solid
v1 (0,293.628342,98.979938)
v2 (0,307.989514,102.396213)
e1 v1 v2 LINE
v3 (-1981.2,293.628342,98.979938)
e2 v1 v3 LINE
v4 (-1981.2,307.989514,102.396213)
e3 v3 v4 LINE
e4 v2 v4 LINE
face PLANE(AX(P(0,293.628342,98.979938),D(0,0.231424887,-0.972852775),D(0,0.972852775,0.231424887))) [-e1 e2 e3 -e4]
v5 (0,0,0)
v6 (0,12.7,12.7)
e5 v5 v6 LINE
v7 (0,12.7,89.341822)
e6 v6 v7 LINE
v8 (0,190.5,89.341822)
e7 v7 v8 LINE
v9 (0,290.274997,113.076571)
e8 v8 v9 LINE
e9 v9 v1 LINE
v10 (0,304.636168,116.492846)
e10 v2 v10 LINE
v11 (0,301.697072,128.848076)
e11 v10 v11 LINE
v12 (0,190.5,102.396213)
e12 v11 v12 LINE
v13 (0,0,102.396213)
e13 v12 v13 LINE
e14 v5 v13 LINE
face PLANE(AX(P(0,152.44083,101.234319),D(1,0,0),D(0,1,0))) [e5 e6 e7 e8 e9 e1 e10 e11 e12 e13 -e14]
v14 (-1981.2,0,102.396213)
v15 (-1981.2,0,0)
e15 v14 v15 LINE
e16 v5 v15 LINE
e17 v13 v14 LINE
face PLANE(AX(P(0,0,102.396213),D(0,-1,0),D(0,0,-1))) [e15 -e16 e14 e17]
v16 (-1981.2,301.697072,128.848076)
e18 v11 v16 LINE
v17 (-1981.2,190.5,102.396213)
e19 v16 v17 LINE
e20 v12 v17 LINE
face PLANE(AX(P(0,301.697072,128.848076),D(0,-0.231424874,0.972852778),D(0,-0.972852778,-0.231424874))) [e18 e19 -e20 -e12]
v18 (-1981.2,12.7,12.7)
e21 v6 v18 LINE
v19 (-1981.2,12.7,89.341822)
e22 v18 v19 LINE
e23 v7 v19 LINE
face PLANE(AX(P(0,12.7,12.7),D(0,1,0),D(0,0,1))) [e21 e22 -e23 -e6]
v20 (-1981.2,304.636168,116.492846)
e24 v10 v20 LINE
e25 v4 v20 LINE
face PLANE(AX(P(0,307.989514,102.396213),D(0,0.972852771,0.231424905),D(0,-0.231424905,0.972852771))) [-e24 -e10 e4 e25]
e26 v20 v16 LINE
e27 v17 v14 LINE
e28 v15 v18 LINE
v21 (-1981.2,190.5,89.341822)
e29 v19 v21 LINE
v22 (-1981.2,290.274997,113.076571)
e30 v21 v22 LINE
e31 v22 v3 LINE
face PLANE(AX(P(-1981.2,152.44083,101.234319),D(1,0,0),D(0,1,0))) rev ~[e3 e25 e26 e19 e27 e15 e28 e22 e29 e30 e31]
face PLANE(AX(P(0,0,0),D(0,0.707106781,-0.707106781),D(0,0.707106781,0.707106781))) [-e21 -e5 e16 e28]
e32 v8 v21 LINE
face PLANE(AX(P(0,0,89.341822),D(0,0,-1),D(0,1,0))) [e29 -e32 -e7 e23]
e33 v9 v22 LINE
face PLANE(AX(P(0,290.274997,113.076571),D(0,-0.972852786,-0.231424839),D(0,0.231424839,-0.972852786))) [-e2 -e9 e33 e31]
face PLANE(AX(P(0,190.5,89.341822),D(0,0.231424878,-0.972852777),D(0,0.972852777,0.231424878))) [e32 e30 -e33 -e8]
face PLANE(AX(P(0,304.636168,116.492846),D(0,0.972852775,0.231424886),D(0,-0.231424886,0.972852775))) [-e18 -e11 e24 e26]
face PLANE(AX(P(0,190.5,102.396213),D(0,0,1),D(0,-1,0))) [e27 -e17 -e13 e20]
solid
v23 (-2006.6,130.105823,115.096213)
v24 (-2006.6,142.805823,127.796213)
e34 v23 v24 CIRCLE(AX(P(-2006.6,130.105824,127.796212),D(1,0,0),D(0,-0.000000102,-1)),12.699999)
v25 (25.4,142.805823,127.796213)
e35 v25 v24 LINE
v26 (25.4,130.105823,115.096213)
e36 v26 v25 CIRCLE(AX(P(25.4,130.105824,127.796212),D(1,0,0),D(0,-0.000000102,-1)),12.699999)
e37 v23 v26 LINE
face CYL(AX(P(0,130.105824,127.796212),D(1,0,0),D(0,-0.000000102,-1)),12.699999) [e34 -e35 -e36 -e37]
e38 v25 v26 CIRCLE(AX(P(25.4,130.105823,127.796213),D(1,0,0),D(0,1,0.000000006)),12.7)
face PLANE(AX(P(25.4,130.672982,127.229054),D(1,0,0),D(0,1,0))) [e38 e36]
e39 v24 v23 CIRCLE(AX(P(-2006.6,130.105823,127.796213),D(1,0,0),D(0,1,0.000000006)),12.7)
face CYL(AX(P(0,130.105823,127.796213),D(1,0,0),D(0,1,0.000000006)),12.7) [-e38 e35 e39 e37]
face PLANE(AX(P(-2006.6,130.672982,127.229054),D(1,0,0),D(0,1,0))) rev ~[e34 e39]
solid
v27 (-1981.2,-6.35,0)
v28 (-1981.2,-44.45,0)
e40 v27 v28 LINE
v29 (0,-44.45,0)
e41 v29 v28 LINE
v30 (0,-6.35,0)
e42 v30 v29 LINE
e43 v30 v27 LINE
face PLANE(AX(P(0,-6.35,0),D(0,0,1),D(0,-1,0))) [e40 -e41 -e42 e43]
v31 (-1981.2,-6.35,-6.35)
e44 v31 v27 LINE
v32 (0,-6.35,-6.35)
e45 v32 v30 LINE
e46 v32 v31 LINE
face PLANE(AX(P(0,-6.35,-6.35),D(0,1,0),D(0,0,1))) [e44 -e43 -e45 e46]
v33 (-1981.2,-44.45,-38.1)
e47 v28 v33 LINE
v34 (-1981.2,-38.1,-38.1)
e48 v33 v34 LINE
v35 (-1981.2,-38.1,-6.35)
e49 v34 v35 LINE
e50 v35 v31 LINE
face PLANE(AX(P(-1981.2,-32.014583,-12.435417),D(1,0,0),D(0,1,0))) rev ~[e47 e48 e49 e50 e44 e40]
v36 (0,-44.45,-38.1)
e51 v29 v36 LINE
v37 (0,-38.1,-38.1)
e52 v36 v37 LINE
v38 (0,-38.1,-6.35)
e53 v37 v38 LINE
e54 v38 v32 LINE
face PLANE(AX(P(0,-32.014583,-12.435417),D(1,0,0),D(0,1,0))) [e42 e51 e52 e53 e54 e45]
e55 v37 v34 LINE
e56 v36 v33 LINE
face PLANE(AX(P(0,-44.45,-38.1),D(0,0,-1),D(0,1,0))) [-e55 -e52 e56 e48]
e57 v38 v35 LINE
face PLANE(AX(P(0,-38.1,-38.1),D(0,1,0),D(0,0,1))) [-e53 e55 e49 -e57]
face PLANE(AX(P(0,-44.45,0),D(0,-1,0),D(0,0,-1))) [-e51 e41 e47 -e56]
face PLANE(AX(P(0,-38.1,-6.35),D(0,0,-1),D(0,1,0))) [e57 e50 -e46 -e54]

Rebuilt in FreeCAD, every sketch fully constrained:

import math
import FreeCAD as App
import Part
import Sketcher

V = App.Vector
Q = App.Units.Quantity


def add_polygon(sketch, points):
    """Adds a closed chain of lines whose ends are joined by coincident constraints."""
    first, n = sketch.GeometryCount, len(points)
    for a, b in zip(points, points[1:] + points[:1]):
        sketch.addGeometry(Part.LineSegment(App.Vector(*a, 0), App.Vector(*b, 0)), False)
    for i in range(n):
        sketch.addConstraint(Sketcher.Constraint("Coincident", first + i, 2, first + (i + 1) % n, 1))

doc = App.newDocument("Part")
body = doc.addObject("PartDesign::Body", "Body")
body.AllowCompound = True

sketch1 = doc.addObject("Sketcher::SketchObject", "Sketch")
body.addObject(sketch1)
sketch1.AttachmentSupport = (doc.YZ_Plane, [""])
sketch1.MapMode = "FlatFace"
add_polygon(sketch1, [(0, 101.6), (0, 0), (12.7, 12.7), (12.7, 101.6)])
add_polygon(sketch1, [(-6.35, -6.35), (-6.35, 0), (-44.45, 0), (-44.45, -38.1), (-38.1, -38.1), (-38.1, -6.35)])
sketch1.addConstraint(Sketcher.Constraint("Vertical", 0))
sketch1.addConstraint(Sketcher.Constraint("Vertical", 2))
sketch1.addConstraint(Sketcher.Constraint("Horizontal", 3))
sketch1.addConstraint(Sketcher.Constraint("Vertical", 4))
sketch1.addConstraint(Sketcher.Constraint("Horizontal", 5))
sketch1.addConstraint(Sketcher.Constraint("Vertical", 6))
sketch1.addConstraint(Sketcher.Constraint("Horizontal", 7))
sketch1.addConstraint(Sketcher.Constraint("Vertical", 8))
sketch1.addConstraint(Sketcher.Constraint("Horizontal", 9))
sketch1.addConstraint(Sketcher.Constraint("Coincident", 0, 2, -1, 1))
sketch1.addConstraint(Sketcher.Constraint("PointOnObject", 4, 2, -1))
sketch1.addConstraint(Sketcher.Constraint("Equal", 7, 4))
sketch1.addConstraint(Sketcher.Constraint("Equal", 5, 6))
sketch1.addConstraint(Sketcher.Constraint("DistanceY", 0, 2, 0, 1, Q("4 in")))
sketch1.addConstraint(Sketcher.Constraint("DistanceX", 3, 2, 3, 1, Q("0.5 in")))
sketch1.addConstraint(Sketcher.Constraint("DistanceX", 5, 2, 5, 1, Q("1.5 in")))
sketch1.addConstraint(Sketcher.Constraint("DistanceY", 2, 1, 2, 2, Q("3.5 in")))
sketch1.addConstraint(Sketcher.Constraint("DistanceX", 7, 2, 1, 2, Q("2 in")))
sketch1.addConstraint(Sketcher.Constraint("DistanceX", 7, 1, 7, 2, Q("0.25 in")))
pad1 = doc.addObject("PartDesign::Pad", "Pad")
body.addObject(pad1)
pad1.Profile = sketch1
pad1.Length = Q("78 in")
pad1.Reversed = True

sketch2 = doc.addObject("Sketcher::SketchObject", "Sketch001")
body.addObject(sketch2)
sketch2.AttachmentSupport = (doc.YZ_Plane, [""])
sketch2.MapMode = "FlatFace"
add_polygon(sketch2, [(190.5, 102.396213), (0, 102.396213), (0, 89.341822), (190.5, 89.341822), (290.274997, 113.076571), (293.628342, 98.979938), (307.989514, 102.396213), (304.636168, 116.492846), (301.697072, 128.848076)])
sketch2.addConstraint(Sketcher.Constraint("Horizontal", 0))
sketch2.addConstraint(Sketcher.Constraint("Vertical", 1))
sketch2.addConstraint(Sketcher.Constraint("Horizontal", 2))
sketch2.addConstraint(Sketcher.Constraint("PointOnObject", 0, 2, -2))
sketch2.addConstraint(Sketcher.Constraint("Perpendicular", 3, 4))
sketch2.addConstraint(Sketcher.Constraint("Perpendicular", 4, 5))
sketch2.addConstraint(Sketcher.Constraint("Perpendicular", 5, 6))
sketch2.addConstraint(Sketcher.Constraint("Parallel", 6, 7))
sketch2.addConstraint(Sketcher.Constraint("Perpendicular", 7, 8))
sketch2.addConstraint(Sketcher.Constraint("Horizontal", 0, 2, 5, 2))
sketch2.addConstraint(Sketcher.Constraint("Vertical", 2, 2, 8, 2))
sketch2.addConstraint(Sketcher.Constraint("Equal", 4, 6))
sketch2.addConstraint(Sketcher.Constraint("DistanceX", 0, 2, 0, 1, Q("7.5 in")))
sketch2.addConstraint(Sketcher.Constraint("Distance", 7, Q("0.5 in")))
sketch2.addConstraint(Sketcher.Constraint("Distance", 8, Q("4.5 in")))
sketch2.addConstraint(Sketcher.Constraint("DistanceY", 1, 2, 1, 1, 13.054391))
sketch2.addConstraint(Sketcher.Constraint("DistanceY", -1, 1, 1, 2, 89.341822))
sketch2.addConstraint(Sketcher.Constraint("DistanceY", -1, 1, 3, 2, 113.076571))
pad2 = doc.addObject("PartDesign::Pad", "Pad001")
body.addObject(pad2)
pad2.Profile = sketch2
pad2.Length = Q("78 in")
pad2.Reversed = True
body2 = doc.addObject("PartDesign::Body", "Body001")

sketch3 = doc.addObject("Sketcher::SketchObject", "Sketch002")
body2.addObject(sketch3)
sketch3.AttachmentSupport = (doc.getObject("YZ_Plane001"), [""])
sketch3.MapMode = "FlatFace"
sketch3.addGeometry(Part.ArcOfCircle(Part.Circle(V(130.105823, 127.796213, 0), V(0, 0, 1), 12.7), math.radians(0), math.radians(270)), False)
sketch3.addGeometry(Part.ArcOfCircle(Part.Circle(V(130.105824, 127.796212, 0), V(0, 0, 1), 12.699999), math.radians(-90.000006), math.radians(0.000006)), False)
sketch3.addConstraint(Sketcher.Constraint("Tangent", 0, 1, 1, 2))
sketch3.addConstraint(Sketcher.Constraint("Coincident", 1, 1, 0, 2))
sketch3.addConstraint(Sketcher.Constraint("Horizontal", 1, 3, 0, 1))
sketch3.addConstraint(Sketcher.Constraint("Vertical", 0, 3, 1, 1))
sketch3.addConstraint(Sketcher.Constraint("Radius", 0, Q("0.5 in")))
sketch3.addConstraint(Sketcher.Constraint("DistanceY", -1, 1, 1, 3, 127.796212))
sketch3.addConstraint(Sketcher.Constraint("DistanceX", -1, 1, 0, 3, 130.105823))
pad3 = doc.addObject("PartDesign::Pad", "Pad002")
body2.addObject(pad3)
pad3.Profile = sketch3
pad3.Type = "TwoLengths"
pad3.Length = Q("1 in")
pad3.Length2 = Q("79 in")

doc.recompute()
